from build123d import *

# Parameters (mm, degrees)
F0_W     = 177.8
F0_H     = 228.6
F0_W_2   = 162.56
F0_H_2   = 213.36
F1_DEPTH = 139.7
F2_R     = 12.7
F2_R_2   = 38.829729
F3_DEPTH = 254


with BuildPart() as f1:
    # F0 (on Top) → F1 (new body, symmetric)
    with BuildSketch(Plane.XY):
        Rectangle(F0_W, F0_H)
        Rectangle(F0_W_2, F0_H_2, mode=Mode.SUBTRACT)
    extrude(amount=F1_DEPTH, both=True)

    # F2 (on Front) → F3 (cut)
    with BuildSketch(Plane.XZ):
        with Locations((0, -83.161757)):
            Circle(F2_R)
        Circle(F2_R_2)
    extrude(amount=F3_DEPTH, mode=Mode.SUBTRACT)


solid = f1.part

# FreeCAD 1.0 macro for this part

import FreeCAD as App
import Part
import Sketcher
Q = App.Units.Quantity

doc = App.newDocument("Part")
body = doc.addObject("PartDesign::Body", "Body")

# Sketch on XY plane
sketch1 = body.newObject("Sketcher::SketchObject", "Sketch")
sketch1.AttachmentSupport = (doc.getObject("XY_Plane"), [""])
sketch1.MapMode = "FlatFace"
sketch1.addGeometry(Part.LineSegment(App.Vector(-89, 114, 0), App.Vector(-89, -114, 0)), False)
sketch1.addGeometry(Part.LineSegment(App.Vector(-89, -114, 0), App.Vector(89, -114, 0)), False)
sketch1.addGeometry(Part.LineSegment(App.Vector(89, -114, 0), App.Vector(89, 114, 0)), False)
sketch1.addGeometry(Part.LineSegment(App.Vector(89, 114, 0), App.Vector(-89, 114, 0)), False)
sketch1.addGeometry(Part.LineSegment(App.Vector(81, -107, 0), App.Vector(-81, -107, 0)), False)
sketch1.addGeometry(Part.LineSegment(App.Vector(-81, -107, 0), App.Vector(-81, 107, 0)), False)
sketch1.addGeometry(Part.LineSegment(App.Vector(-81, 107, 0), App.Vector(81, 107, 0)), False)
sketch1.addGeometry(Part.LineSegment(App.Vector(81, 107, 0), App.Vector(81, -107, 0)), False)
sketch1.addConstraint(Sketcher.Constraint("Coincident", 0, 2, 1, 1))
sketch1.addConstraint(Sketcher.Constraint("Coincident", 1, 2, 2, 1))
sketch1.addConstraint(Sketcher.Constraint("Coincident", 2, 2, 3, 1))
sketch1.addConstraint(Sketcher.Constraint("Coincident", 3, 2, 0, 1))
sketch1.addConstraint(Sketcher.Constraint("Coincident", 4, 2, 5, 1))
sketch1.addConstraint(Sketcher.Constraint("Coincident", 5, 2, 6, 1))
sketch1.addConstraint(Sketcher.Constraint("Coincident", 6, 2, 7, 1))
sketch1.addConstraint(Sketcher.Constraint("Coincident", 7, 2, 4, 1))
sketch1.addConstraint(Sketcher.Constraint("Vertical", 0))
sketch1.addConstraint(Sketcher.Constraint("Horizontal", 1))
sketch1.addConstraint(Sketcher.Constraint("Vertical", 2))
sketch1.addConstraint(Sketcher.Constraint("Horizontal", 3))
sketch1.addConstraint(Sketcher.Constraint("Horizontal", 4))
sketch1.addConstraint(Sketcher.Constraint("Vertical", 5))
sketch1.addConstraint(Sketcher.Constraint("Horizontal", 6))
sketch1.addConstraint(Sketcher.Constraint("Vertical", 7))
sketch1.addConstraint(Sketcher.Constraint("Symmetric", 0, 2, 2, 2, -1, 1))
sketch1.addConstraint(Sketcher.Constraint("Symmetric", 4, 2, 6, 2, -1, 1))
sketch1.addConstraint(Sketcher.Constraint("DistanceX", 1, 1, 1, 2, Q("7 in")))
sketch1.addConstraint(Sketcher.Constraint("DistanceY", 0, 2, 0, 1, Q("9 in")))
sketch1.addConstraint(Sketcher.Constraint("DistanceX", 4, 2, 4, 1, Q("6.4 in")))
sketch1.addConstraint(Sketcher.Constraint("DistanceY", 5, 1, 5, 2, Q("8.4 in")))
pad1 = body.newObject("PartDesign::Pad", "Pad")
pad1.Profile = sketch1
pad1.Length = Q("11 in")
pad1.Midplane = True

# Sketch on XZ plane
sketch2 = body.newObject("Sketcher::SketchObject", "Sketch001")
sketch2.AttachmentSupport = (doc.getObject("XZ_Plane"), [""])
sketch2.MapMode = "FlatFace"
sketch2.addGeometry(Part.Circle(App.Vector(0, -83, 0), App.Vector(0, 0, 1), 13), False)
sketch2.addGeometry(Part.Circle(App.Vector(0, 0, 0), App.Vector(0, 0, 1), 39), False)
sketch2.addConstraint(Sketcher.Constraint("Coincident", 1, 3, -1, 1))
sketch2.addConstraint(Sketcher.Constraint("PointOnObject", 0, 3, -2))
sketch2.addConstraint(Sketcher.Constraint("Diameter", 0, Q("1 in")))
sketch2.addConstraint(Sketcher.Constraint("Diameter", 1, 77.659458))
sketch2.addConstraint(Sketcher.Constraint("DistanceY", 0, 3, -1, 1, 83.161757))
pocket1 = body.newObject("PartDesign::Pocket", "Pocket")
pocket1.Profile = sketch2
pocket1.Length = Q("10 in")
pocket1.Reversed = True

doc.recompute()
